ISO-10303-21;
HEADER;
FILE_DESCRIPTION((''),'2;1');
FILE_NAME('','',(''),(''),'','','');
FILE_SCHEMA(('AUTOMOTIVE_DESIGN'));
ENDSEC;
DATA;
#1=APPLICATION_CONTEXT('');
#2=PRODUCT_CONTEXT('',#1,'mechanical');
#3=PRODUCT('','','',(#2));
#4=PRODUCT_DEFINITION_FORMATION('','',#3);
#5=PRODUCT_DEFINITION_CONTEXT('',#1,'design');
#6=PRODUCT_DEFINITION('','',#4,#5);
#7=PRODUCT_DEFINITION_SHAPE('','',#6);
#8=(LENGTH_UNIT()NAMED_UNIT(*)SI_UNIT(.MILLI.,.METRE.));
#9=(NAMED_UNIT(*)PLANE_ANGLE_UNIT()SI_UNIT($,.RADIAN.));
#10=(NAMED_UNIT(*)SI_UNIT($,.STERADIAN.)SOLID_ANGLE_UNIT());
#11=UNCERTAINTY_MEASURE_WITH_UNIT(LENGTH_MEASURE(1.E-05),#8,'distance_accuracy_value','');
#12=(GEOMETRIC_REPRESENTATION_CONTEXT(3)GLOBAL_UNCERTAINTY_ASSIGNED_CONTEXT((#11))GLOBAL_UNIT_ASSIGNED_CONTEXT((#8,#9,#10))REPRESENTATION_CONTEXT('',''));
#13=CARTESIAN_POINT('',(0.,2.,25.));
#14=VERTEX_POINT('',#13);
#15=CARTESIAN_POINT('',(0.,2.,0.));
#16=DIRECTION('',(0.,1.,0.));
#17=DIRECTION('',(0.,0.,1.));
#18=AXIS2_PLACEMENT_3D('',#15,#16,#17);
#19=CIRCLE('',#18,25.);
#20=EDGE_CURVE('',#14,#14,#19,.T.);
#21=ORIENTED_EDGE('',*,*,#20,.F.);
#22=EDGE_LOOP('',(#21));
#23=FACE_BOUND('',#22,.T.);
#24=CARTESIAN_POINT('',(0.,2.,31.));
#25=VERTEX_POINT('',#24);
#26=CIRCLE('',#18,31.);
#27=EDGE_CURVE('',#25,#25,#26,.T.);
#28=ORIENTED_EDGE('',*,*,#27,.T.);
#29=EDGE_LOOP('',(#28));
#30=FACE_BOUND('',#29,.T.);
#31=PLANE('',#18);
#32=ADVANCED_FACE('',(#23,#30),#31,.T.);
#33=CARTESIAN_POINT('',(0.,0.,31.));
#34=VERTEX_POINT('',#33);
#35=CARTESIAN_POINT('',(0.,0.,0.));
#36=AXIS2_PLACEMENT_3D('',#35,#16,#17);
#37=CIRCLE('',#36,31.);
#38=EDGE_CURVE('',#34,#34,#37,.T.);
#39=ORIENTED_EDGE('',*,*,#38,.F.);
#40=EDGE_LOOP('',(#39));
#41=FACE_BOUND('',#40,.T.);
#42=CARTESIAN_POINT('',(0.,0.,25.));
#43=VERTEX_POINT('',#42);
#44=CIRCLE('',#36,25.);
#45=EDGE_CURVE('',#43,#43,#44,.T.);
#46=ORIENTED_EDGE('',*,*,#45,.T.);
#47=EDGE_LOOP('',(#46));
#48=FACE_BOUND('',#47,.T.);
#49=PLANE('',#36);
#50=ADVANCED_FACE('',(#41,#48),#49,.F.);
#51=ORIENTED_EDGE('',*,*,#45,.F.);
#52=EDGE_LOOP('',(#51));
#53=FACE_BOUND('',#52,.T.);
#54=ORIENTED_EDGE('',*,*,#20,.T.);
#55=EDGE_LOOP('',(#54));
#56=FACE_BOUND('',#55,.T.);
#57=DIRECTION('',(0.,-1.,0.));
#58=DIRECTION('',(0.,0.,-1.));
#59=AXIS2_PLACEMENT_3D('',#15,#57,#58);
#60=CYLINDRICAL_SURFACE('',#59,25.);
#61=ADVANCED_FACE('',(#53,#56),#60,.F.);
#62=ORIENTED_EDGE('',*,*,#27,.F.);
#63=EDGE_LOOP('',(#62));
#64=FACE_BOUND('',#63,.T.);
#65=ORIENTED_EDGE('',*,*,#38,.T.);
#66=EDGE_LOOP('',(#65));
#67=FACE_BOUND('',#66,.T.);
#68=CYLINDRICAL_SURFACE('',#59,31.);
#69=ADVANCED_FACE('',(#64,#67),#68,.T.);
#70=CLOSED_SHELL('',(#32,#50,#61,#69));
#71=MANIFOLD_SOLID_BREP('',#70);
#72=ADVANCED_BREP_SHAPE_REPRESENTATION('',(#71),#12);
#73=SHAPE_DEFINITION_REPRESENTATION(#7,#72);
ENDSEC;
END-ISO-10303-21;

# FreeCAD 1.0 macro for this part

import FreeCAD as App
import Part
import Sketcher
Q = App.Units.Quantity

doc = App.newDocument("Part")
body = doc.addObject("PartDesign::Body", "Body")

# Sketch on XZ plane
sketch1 = body.newObject("Sketcher::SketchObject", "Sketch")
sketch1.AttachmentSupport = (doc.getObject("XZ_Plane"), [""])
sketch1.MapMode = "FlatFace"
sketch1.addGeometry([
    Part.Circle(App.Vector(0, 0, 0), App.Vector(0, 0, 1), 31),
    Part.Circle(App.Vector(0, 0, 0), App.Vector(0, 0, 1), 25),
], False)
sketch1.addConstraint([
    Sketcher.Constraint("Coincident", 0, 3, -1, 1),
    Sketcher.Constraint("Coincident", 1, 3, -1, 1),
    Sketcher.Constraint("Diameter", 0, Q("62 mm")),
    Sketcher.Constraint("Diameter", 1, Q("50 mm")),
])
pad1 = body.newObject("PartDesign::Pad", "Pad")
pad1.Profile = sketch1
pad1.Length = 2
pad1.Reversed = True

doc.recompute()
